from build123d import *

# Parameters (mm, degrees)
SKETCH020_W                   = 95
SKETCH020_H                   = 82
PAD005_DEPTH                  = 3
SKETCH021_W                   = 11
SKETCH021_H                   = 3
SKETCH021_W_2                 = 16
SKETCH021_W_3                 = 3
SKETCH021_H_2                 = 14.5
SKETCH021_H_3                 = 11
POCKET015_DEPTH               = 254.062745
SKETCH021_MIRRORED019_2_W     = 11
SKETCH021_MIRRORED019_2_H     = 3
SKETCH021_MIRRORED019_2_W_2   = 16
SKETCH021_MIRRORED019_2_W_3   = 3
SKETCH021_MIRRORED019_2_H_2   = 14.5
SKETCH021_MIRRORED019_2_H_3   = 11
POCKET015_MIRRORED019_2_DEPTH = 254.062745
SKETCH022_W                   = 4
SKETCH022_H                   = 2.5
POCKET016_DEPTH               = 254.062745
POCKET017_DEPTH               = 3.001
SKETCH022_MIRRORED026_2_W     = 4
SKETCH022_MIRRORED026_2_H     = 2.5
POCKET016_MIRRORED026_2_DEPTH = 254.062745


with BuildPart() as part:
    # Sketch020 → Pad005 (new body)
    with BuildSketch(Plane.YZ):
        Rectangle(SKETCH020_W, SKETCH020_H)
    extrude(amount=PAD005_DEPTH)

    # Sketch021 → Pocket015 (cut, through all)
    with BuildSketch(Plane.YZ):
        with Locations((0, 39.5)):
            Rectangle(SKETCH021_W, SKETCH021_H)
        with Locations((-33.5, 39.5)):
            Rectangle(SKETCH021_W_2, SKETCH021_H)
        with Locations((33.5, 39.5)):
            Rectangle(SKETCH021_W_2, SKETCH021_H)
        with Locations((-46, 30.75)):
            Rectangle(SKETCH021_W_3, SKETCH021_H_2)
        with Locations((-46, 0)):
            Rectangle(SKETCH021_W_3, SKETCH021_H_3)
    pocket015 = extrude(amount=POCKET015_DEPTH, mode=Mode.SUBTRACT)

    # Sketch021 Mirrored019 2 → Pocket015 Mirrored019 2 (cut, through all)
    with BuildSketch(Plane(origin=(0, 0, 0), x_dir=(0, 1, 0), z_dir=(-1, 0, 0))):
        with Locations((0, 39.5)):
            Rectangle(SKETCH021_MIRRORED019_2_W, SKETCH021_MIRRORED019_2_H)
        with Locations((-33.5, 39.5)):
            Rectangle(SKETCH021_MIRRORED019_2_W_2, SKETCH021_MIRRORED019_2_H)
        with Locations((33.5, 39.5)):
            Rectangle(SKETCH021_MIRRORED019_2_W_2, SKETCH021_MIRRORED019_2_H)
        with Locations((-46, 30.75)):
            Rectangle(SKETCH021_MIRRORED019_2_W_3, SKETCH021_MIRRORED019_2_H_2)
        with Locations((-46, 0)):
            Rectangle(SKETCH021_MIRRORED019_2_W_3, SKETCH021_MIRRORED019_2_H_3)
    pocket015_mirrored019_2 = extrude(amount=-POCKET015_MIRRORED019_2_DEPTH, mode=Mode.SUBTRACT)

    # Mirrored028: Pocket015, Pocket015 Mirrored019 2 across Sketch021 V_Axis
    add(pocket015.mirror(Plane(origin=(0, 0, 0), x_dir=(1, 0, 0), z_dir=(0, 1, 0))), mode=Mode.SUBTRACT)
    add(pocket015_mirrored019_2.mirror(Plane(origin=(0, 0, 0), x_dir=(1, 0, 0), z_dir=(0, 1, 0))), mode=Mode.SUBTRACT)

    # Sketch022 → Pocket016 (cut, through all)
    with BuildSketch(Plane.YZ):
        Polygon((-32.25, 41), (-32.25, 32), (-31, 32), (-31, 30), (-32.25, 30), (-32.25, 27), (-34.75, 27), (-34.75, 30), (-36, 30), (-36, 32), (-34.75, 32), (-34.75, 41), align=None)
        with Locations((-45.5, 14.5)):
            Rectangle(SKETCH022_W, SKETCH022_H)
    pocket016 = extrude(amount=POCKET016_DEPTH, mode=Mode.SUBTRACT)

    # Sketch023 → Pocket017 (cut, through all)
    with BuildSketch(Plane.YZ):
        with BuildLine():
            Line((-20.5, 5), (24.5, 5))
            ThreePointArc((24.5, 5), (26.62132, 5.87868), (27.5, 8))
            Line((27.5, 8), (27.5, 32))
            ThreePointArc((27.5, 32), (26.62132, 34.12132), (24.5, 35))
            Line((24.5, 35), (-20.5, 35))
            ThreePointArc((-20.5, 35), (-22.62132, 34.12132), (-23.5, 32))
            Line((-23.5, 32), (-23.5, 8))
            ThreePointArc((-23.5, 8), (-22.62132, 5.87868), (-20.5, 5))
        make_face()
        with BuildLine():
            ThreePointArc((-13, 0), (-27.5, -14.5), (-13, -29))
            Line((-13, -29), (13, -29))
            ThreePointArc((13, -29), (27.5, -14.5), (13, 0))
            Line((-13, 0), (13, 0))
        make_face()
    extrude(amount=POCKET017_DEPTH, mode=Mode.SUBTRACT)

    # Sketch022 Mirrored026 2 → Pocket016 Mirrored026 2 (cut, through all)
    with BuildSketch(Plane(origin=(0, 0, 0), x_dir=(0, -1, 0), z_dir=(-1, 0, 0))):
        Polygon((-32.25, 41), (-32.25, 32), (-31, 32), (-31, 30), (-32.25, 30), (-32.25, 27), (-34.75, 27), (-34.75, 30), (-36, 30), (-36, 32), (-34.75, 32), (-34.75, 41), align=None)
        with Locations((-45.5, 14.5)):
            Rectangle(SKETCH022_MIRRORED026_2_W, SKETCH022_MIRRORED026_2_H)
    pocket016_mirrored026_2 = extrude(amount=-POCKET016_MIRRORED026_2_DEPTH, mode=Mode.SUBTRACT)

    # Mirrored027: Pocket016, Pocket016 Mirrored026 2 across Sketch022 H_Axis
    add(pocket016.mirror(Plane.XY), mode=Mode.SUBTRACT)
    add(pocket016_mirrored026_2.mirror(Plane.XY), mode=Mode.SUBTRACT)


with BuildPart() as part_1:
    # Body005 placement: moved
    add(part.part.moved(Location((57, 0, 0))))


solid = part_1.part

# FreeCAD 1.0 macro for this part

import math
import FreeCAD as App
import Part
import Sketcher
from FreeCAD import Vector

doc = App.newDocument("Part")
body = doc.addObject("PartDesign::Body", "Body")

# Sketch on YZ plane
sketch1 = body.newObject("Sketcher::SketchObject", "Sketch")
sketch1.AttachmentSupport = (doc.getObject("YZ_Plane"), [""])
sketch1.MapMode = "FlatFace"
sketch1.addGeometry([
    Part.LineSegment(Vector(-48, 41, 0), Vector(-48, -41, 0)),
    Part.LineSegment(Vector(-48, -41, 0), Vector(48, -41, 0)),
    Part.LineSegment(Vector(48, -41, 0), Vector(48, 41, 0)),
    Part.LineSegment(Vector(48, 41, 0), Vector(-48, 41, 0)),
], False)
sketch1.addConstraint([
    Sketcher.Constraint("Coincident", 0, 2, 1, 1),
    Sketcher.Constraint("Coincident", 1, 2, 2, 1),
    Sketcher.Constraint("Coincident", 2, 2, 3, 1),
    Sketcher.Constraint("Coincident", 3, 2, 0, 1),
    Sketcher.Constraint("Vertical", 0),
    Sketcher.Constraint("Horizontal", 1),
    Sketcher.Constraint("Vertical", 2),
    Sketcher.Constraint("Horizontal", 3),
    Sketcher.Constraint("Symmetric", 0, 2, 2, 2, -1, 1),
    Sketcher.Constraint("DistanceX", 1, 1, 1, 2, 95.0),
    Sketcher.Constraint("DistanceY", 0, 2, 0, 1, 82.0),
])
pad1 = body.newObject("PartDesign::Pad", "Pad")
pad1.Profile = sketch1
pad1.Length = 3

# Sketch on YZ plane
sketch2 = body.newObject("Sketcher::SketchObject", "Sketch001")
sketch2.AttachmentSupport = (doc.getObject("YZ_Plane"), [""])
sketch2.MapMode = "FlatFace"
sketch2.addGeometry([
    Part.LineSegment(Vector(-5.5, 41, 0), Vector(-5.5, 38, 0)),  # 0
    Part.LineSegment(Vector(-5.5, 38, 0), Vector(5.5, 38, 0)),  # 1
    Part.LineSegment(Vector(5.5, 38, 0), Vector(5.5, 41, 0)),  # 2
    Part.LineSegment(Vector(5.5, 41, 0), Vector(-5.5, 41, 0)),  # 3
    Part.LineSegment(Vector(-41.5, 41, 0), Vector(-41.5, 38, 0)),  # 4
    Part.LineSegment(Vector(-41.5, 38, 0), Vector(-25.5, 38, 0)),  # 5
    Part.LineSegment(Vector(-25.5, 38, 0), Vector(-25.5, 41, 0)),  # 6
    Part.LineSegment(Vector(-25.5, 41, 0), Vector(-41.5, 41, 0)),  # 7
    Part.LineSegment(Vector(25.5, 41, 0), Vector(25.5, 38, 0)),  # 8
    Part.LineSegment(Vector(25.5, 38, 0), Vector(41.5, 38, 0)),  # 9
    Part.LineSegment(Vector(41.5, 38, 0), Vector(41.5, 41, 0)),  # 10
    Part.LineSegment(Vector(41.5, 41, 0), Vector(25.5, 41, 0)),  # 11
    Part.LineSegment(Vector(-47.5, 38, 0), Vector(-47.5, 23.5, 0)),  # 12
    Part.LineSegment(Vector(-47.5, 23.5, 0), Vector(-44.5, 23.5, 0)),  # 13
    Part.LineSegment(Vector(-44.5, 23.5, 0), Vector(-44.5, 38, 0)),  # 14
    Part.LineSegment(Vector(-44.5, 38, 0), Vector(-47.5, 38, 0)),  # 15
    Part.LineSegment(Vector(-47.5, 5.5, 0), Vector(-47.5, -5.5, 0)),  # 16
    Part.LineSegment(Vector(-47.5, -5.5, 0), Vector(-44.5, -5.5, 0)),  # 17
    Part.LineSegment(Vector(-44.5, -5.5, 0), Vector(-44.5, 5.5, 0)),  # 18
    Part.LineSegment(Vector(-44.5, 5.5, 0), Vector(-47.5, 5.5, 0)),  # 19
], False)
sketch2.addConstraint([
    Sketcher.Constraint("Coincident", 0, 2, 1, 1),
    Sketcher.Constraint("Coincident", 1, 2, 2, 1),
    Sketcher.Constraint("Coincident", 2, 2, 3, 1),
    Sketcher.Constraint("Coincident", 3, 2, 0, 1),
    Sketcher.Constraint("Coincident", 4, 2, 5, 1),
    Sketcher.Constraint("Coincident", 5, 2, 6, 1),
    Sketcher.Constraint("Coincident", 6, 2, 7, 1),
    Sketcher.Constraint("Coincident", 7, 2, 4, 1),
    Sketcher.Constraint("Coincident", 8, 2, 9, 1),
    Sketcher.Constraint("Coincident", 9, 2, 10, 1),
    Sketcher.Constraint("Coincident", 10, 2, 11, 1),
    Sketcher.Constraint("Coincident", 11, 2, 8, 1),
    Sketcher.Constraint("Coincident", 12, 2, 13, 1),
    Sketcher.Constraint("Coincident", 13, 2, 14, 1),
    Sketcher.Constraint("Coincident", 14, 2, 15, 1),
    Sketcher.Constraint("Coincident", 15, 2, 12, 1),
    Sketcher.Constraint("Coincident", 16, 2, 17, 1),
    Sketcher.Constraint("Coincident", 17, 2, 18, 1),
    Sketcher.Constraint("Coincident", 18, 2, 19, 1),
    Sketcher.Constraint("Coincident", 19, 2, 16, 1),
    Sketcher.Constraint("Vertical", 0),
    Sketcher.Constraint("Horizontal", 1),
    Sketcher.Constraint("Vertical", 2),
    Sketcher.Constraint("Horizontal", 3),
    Sketcher.Constraint("Vertical", 4),
    Sketcher.Constraint("Horizontal", 5),
    Sketcher.Constraint("Vertical", 6),
    Sketcher.Constraint("Horizontal", 7),
    Sketcher.Constraint("Vertical", 8),
    Sketcher.Constraint("Horizontal", 9),
    Sketcher.Constraint("Vertical", 10),
    Sketcher.Constraint("Horizontal", 11),
    Sketcher.Constraint("Vertical", 12),
    Sketcher.Constraint("Horizontal", 13),
    Sketcher.Constraint("Vertical", 14),
    Sketcher.Constraint("Horizontal", 15),
    Sketcher.Constraint("Vertical", 16),
    Sketcher.Constraint("Horizontal", 17),
    Sketcher.Constraint("Vertical", 18),
    Sketcher.Constraint("Horizontal", 19),
    Sketcher.Constraint("Symmetric", 5, 2, 8, 2, -2),
    Sketcher.Constraint("Symmetric", 7, 2, 10, 2, -2),
    Sketcher.Constraint("Horizontal", 1, 2, 4, 2),
    Sketcher.Constraint("Horizontal", 3, 2, 6, 2),
    Sketcher.Constraint("Horizontal", 9, 2, 14, 2),
    Sketcher.Constraint("Vertical", 15, 2, 16, 2),
    Sketcher.Constraint("Vertical", 14, 2, 17, 2),
    Sketcher.Constraint("Equal", 19, 0),
    Sketcher.Constraint("Equal", 3, 16),
    Sketcher.Constraint("DistanceX", 1, 1, 1, 2, 11.0),
    Sketcher.Constraint("DistanceX", 5, 1, 5, 2, 16.0),
    Sketcher.Constraint("DistanceX", 13, 1, 13, 2, 3.0),
    Sketcher.Constraint("DistanceY", 12, 2, 12, 1, 14.5),
    Sketcher.Constraint("DistanceY", -1, 1, 0, 2, 38.0),
    Sketcher.Constraint("DistanceX", 4, 2, 0, 2, 36.0),
    Sketcher.Constraint("DistanceX", 1, 2, 8, 2, 20.0),
    Sketcher.Constraint("DistanceX", 12, 2, 4, 2, 6.0),
    Sketcher.Constraint("DistanceY", 16, 2, 12, 2, 29.0),
])
pocket1 = body.newObject("PartDesign::Pocket", "Pocket")
pocket1.Profile = sketch2
pocket1.Type = "ThroughAll"
pocket1.Reversed = True

# Sketch on YZ plane
sketch3 = body.newObject("Sketcher::SketchObject", "Sketch002")
sketch3.AttachmentSupport = (doc.getObject("YZ_Plane"), [""])
sketch3.MapMode = "FlatFace"
sketch3.addGeometry([
    Part.LineSegment(Vector(-5.5, -41, 0), Vector(-5.5, -38, 0)),  # 0
    Part.LineSegment(Vector(-5.5, -38, 0), Vector(5.5, -38, 0)),  # 1
    Part.LineSegment(Vector(5.5, -38, 0), Vector(5.5, -41, 0)),  # 2
    Part.LineSegment(Vector(5.5, -41, 0), Vector(-5.5, -41, 0)),  # 3
    Part.LineSegment(Vector(-41.5, -41, 0), Vector(-41.5, -38, 0)),  # 4
    Part.LineSegment(Vector(-41.5, -38, 0), Vector(-25.5, -38, 0)),  # 5
    Part.LineSegment(Vector(-25.5, -38, 0), Vector(-25.5, -41, 0)),  # 6
    Part.LineSegment(Vector(-25.5, -41, 0), Vector(-41.5, -41, 0)),  # 7
    Part.LineSegment(Vector(25.5, -41, 0), Vector(25.5, -38, 0)),  # 8
    Part.LineSegment(Vector(25.5, -38, 0), Vector(41.5, -38, 0)),  # 9
    Part.LineSegment(Vector(41.5, -38, 0), Vector(41.5, -41, 0)),  # 10
    Part.LineSegment(Vector(41.5, -41, 0), Vector(25.5, -41, 0)),  # 11
    Part.LineSegment(Vector(-47.5, -38, 0), Vector(-47.5, -23.5, 0)),  # 12
    Part.LineSegment(Vector(-47.5, -23.5, 0), Vector(-44.5, -23.5, 0)),  # 13
    Part.LineSegment(Vector(-44.5, -23.5, 0), Vector(-44.5, -38, 0)),  # 14
    Part.LineSegment(Vector(-44.5, -38, 0), Vector(-47.5, -38, 0)),  # 15
    Part.LineSegment(Vector(-47.5, -5.5, 0), Vector(-47.5, 5.5, 0)),  # 16
    Part.LineSegment(Vector(-47.5, 5.5, 0), Vector(-44.5, 5.5, 0)),  # 17
    Part.LineSegment(Vector(-44.5, 5.5, 0), Vector(-44.5, -5.5, 0)),  # 18
    Part.LineSegment(Vector(-44.5, -5.5, 0), Vector(-47.5, -5.5, 0)),  # 19
], False)
sketch3.addConstraint([
    Sketcher.Constraint("Coincident", 0, 2, 1, 1),
    Sketcher.Constraint("Coincident", 1, 2, 2, 1),
    Sketcher.Constraint("Coincident", 2, 2, 3, 1),
    Sketcher.Constraint("Coincident", 3, 2, 0, 1),
    Sketcher.Constraint("Coincident", 4, 2, 5, 1),
    Sketcher.Constraint("Coincident", 5, 2, 6, 1),
    Sketcher.Constraint("Coincident", 6, 2, 7, 1),
    Sketcher.Constraint("Coincident", 7, 2, 4, 1),
    Sketcher.Constraint("Coincident", 8, 2, 9, 1),
    Sketcher.Constraint("Coincident", 9, 2, 10, 1),
    Sketcher.Constraint("Coincident", 10, 2, 11, 1),
    Sketcher.Constraint("Coincident", 11, 2, 8, 1),
    Sketcher.Constraint("Coincident", 12, 2, 13, 1),
    Sketcher.Constraint("Coincident", 13, 2, 14, 1),
    Sketcher.Constraint("Coincident", 14, 2, 15, 1),
    Sketcher.Constraint("Coincident", 15, 2, 12, 1),
    Sketcher.Constraint("Coincident", 16, 2, 17, 1),
    Sketcher.Constraint("Coincident", 17, 2, 18, 1),
    Sketcher.Constraint("Coincident", 18, 2, 19, 1),
    Sketcher.Constraint("Coincident", 19, 2, 16, 1),
    Sketcher.Constraint("Vertical", 0),
    Sketcher.Constraint("Horizontal", 1),
    Sketcher.Constraint("Vertical", 2),
    Sketcher.Constraint("Horizontal", 3),
    Sketcher.Constraint("Vertical", 4),
    Sketcher.Constraint("Horizontal", 5),
    Sketcher.Constraint("Vertical", 6),
    Sketcher.Constraint("Horizontal", 7),
    Sketcher.Constraint("Vertical", 8),
    Sketcher.Constraint("Horizontal", 9),
    Sketcher.Constraint("Vertical", 10),
    Sketcher.Constraint("Horizontal", 11),
    Sketcher.Constraint("Vertical", 12),
    Sketcher.Constraint("Horizontal", 13),
    Sketcher.Constraint("Vertical", 14),
    Sketcher.Constraint("Horizontal", 15),
    Sketcher.Constraint("Vertical", 16),
    Sketcher.Constraint("Horizontal", 17),
    Sketcher.Constraint("Vertical", 18),
    Sketcher.Constraint("Horizontal", 19),
    Sketcher.Constraint("Symmetric", 5, 2, 8, 2, -2),
    Sketcher.Constraint("Symmetric", 7, 2, 10, 2, -2),
    Sketcher.Constraint("Horizontal", 1, 2, 4, 2),
    Sketcher.Constraint("Horizontal", 3, 2, 6, 2),
    Sketcher.Constraint("Horizontal", 9, 2, 14, 2),
    Sketcher.Constraint("Vertical", 15, 2, 16, 2),
    Sketcher.Constraint("Vertical", 14, 2, 17, 2),
    Sketcher.Constraint("Equal", 19, 0),
    Sketcher.Constraint("Equal", 3, 16),
    Sketcher.Constraint("DistanceX", 1, 1, 1, 2, 11.0),
    Sketcher.Constraint("DistanceX", 5, 1, 5, 2, 16.0),
    Sketcher.Constraint("DistanceX", 13, 1, 13, 2, 3.0),
    Sketcher.Constraint("DistanceY", 12, 1, 12, 2, 14.5),
    Sketcher.Constraint("DistanceY", 0, 2, -1, 1, 38.0),
    Sketcher.Constraint("DistanceX", 4, 2, 0, 2, 36.0),
    Sketcher.Constraint("DistanceX", 1, 2, 8, 2, 20.0),
    Sketcher.Constraint("DistanceX", 12, 2, 4, 2, 6.0),
    Sketcher.Constraint("DistanceY", 12, 2, 16, 2, 29.0),
])
pocket2 = body.newObject("PartDesign::Pocket", "Pocket001")
pocket2.Profile = sketch3
pocket2.Type = "ThroughAll"
pocket2.Reversed = True
doc.recompute()

mirrored = body.newObject("PartDesign::Mirrored", "Mirrored")
mirrored.Originals = [pocket1, pocket2]
mirrored.MirrorPlane = (doc.getObject("XZ_Plane"), [""])
body.Tip = mirrored

# Sketch on YZ plane
sketch4 = body.newObject("Sketcher::SketchObject", "Sketch003")
sketch4.AttachmentSupport = (doc.getObject("YZ_Plane"), [""])
sketch4.MapMode = "FlatFace"
sketch4.addGeometry([
    Part.LineSegment(Vector(-32.2, 32, 0), Vector(-32.2, 41, 0)),  # 0
    Part.LineSegment(Vector(-32.2, 41, 0), Vector(-34.8, 41, 0)),  # 1
    Part.LineSegment(Vector(-34.8, 41, 0), Vector(-34.8, 32, 0)),  # 2
    Part.LineSegment(Vector(-34.8, 32, 0), Vector(-36, 32, 0)),  # 3
    Part.LineSegment(Vector(-36, 32, 0), Vector(-36, 30, 0)),  # 4
    Part.LineSegment(Vector(-36, 30, 0), Vector(-34.8, 30, 0)),  # 5
    Part.LineSegment(Vector(-34.8, 30, 0), Vector(-34.8, 27, 0)),  # 6
    Part.LineSegment(Vector(-34.8, 27, 0), Vector(-32.2, 27, 0)),  # 7
    Part.LineSegment(Vector(-32.2, 27, 0), Vector(-32.2, 30, 0)),  # 8
    Part.LineSegment(Vector(-32.2, 30, 0), Vector(-31, 30, 0)),  # 9
    Part.LineSegment(Vector(-31, 30, 0), Vector(-31, 32, 0)),  # 10
    Part.LineSegment(Vector(-31, 32, 0), Vector(-32.2, 32, 0)),  # 11
    Part.LineSegment(Vector(-47.5, 15.8, 0), Vector(-47.5, 13.2, 0)),  # 12
    Part.LineSegment(Vector(-47.5, 13.2, 0), Vector(-43.5, 13.2, 0)),  # 13
    Part.LineSegment(Vector(-43.5, 13.2, 0), Vector(-43.5, 15.8, 0)),  # 14
    Part.LineSegment(Vector(-43.5, 15.8, 0), Vector(-47.5, 15.8, 0)),  # 15
], False)
sketch4.addConstraint([
    Sketcher.Constraint("Coincident", 0, 2, 1, 1),
    Sketcher.Constraint("Coincident", 1, 2, 2, 1),
    Sketcher.Constraint("Coincident", 2, 2, 3, 1),
    Sketcher.Constraint("Coincident", 3, 2, 4, 1),
    Sketcher.Constraint("Coincident", 4, 2, 5, 1),
    Sketcher.Constraint("Coincident", 5, 2, 6, 1),
    Sketcher.Constraint("Coincident", 6, 2, 7, 1),
    Sketcher.Constraint("Coincident", 7, 2, 8, 1),
    Sketcher.Constraint("Coincident", 8, 2, 9, 1),
    Sketcher.Constraint("Coincident", 9, 2, 10, 1),
    Sketcher.Constraint("Coincident", 10, 2, 11, 1),
    Sketcher.Constraint("Coincident", 11, 2, 0, 1),
    Sketcher.Constraint("Coincident", 12, 2, 13, 1),
    Sketcher.Constraint("Coincident", 13, 2, 14, 1),
    Sketcher.Constraint("Coincident", 14, 2, 15, 1),
    Sketcher.Constraint("Coincident", 15, 2, 12, 1),
    Sketcher.Constraint("Vertical", 0),
    Sketcher.Constraint("Horizontal", 1),
    Sketcher.Constraint("Vertical", 2),
    Sketcher.Constraint("Horizontal", 3),
    Sketcher.Constraint("Vertical", 4),
    Sketcher.Constraint("Horizontal", 5),
    Sketcher.Constraint("Vertical", 6),
    Sketcher.Constraint("Horizontal", 7),
    Sketcher.Constraint("Vertical", 8),
    Sketcher.Constraint("Horizontal", 9),
    Sketcher.Constraint("Vertical", 10),
    Sketcher.Constraint("Horizontal", 11),
    Sketcher.Constraint("Vertical", 12),
    Sketcher.Constraint("Horizontal", 13),
    Sketcher.Constraint("Vertical", 14),
    Sketcher.Constraint("Horizontal", 15),
    Sketcher.Constraint("Horizontal", 5, 2, 8, 2),
    Sketcher.Constraint("Horizontal", 3, 2, 10, 2),
    Sketcher.Constraint("Vertical", 2, 2, 5, 2),
    Sketcher.Constraint("Vertical", 0, 2, 7, 2),
    Sketcher.Constraint("Equal", 5, 9),
    Sketcher.Constraint("Equal", 7, 12),
    Sketcher.Constraint("DistanceX", 13, 1, 13, 2, 4.0),
    Sketcher.Constraint("DistanceY", 0, 1, 0, 2, 9.0),
    Sketcher.Constraint("DistanceY", 4, 2, 4, 1, 2.0),
    Sketcher.Constraint("DistanceY", 6, 2, 6, 1, 3.0),
    Sketcher.Constraint("DistanceX", 1, 2, 1, 1, 2.5),
    Sketcher.Constraint("DistanceY", -1, 1, 0, 2, 41.0),
    Sketcher.Constraint("DistanceX", 3, 2, -1, 1, 36.0),
    Sketcher.Constraint("DistanceX", 9, 2, -1, 1, 31.0),
    Sketcher.Constraint("DistanceX", 12, 2, -1, 1, 47.5),
    Sketcher.Constraint("DistanceY", -1, 1, 12, 2, 13.25),
])
pocket3 = body.newObject("PartDesign::Pocket", "Pocket002")
pocket3.Profile = sketch4
pocket3.Type = "ThroughAll"
pocket3.Reversed = True

# Sketch on YZ plane
sketch5 = body.newObject("Sketcher::SketchObject", "Sketch004")
sketch5.AttachmentSupport = (doc.getObject("YZ_Plane"), [""])
sketch5.MapMode = "FlatFace"
sketch5.addGeometry([
    Part.LineSegment(Vector(-20.5, 5, 0), Vector(24.5, 5, 0)),  # 0
    Part.ArcOfCircle(Part.Circle(Vector(24.5, 8, 0), Vector(0, 0, 1), 3), math.radians(-90), math.radians(0)),  # 1
    Part.LineSegment(Vector(27.5, 8, 0), Vector(27.5, 32, 0)),  # 2
    Part.ArcOfCircle(Part.Circle(Vector(24.5, 32, 0), Vector(0, 0, 1), 3), math.radians(0), math.radians(90)),  # 3
    Part.LineSegment(Vector(24.5, 35, 0), Vector(-20.5, 35, 0)),  # 4
    Part.ArcOfCircle(Part.Circle(Vector(-20.5, 32, 0), Vector(0, 0, 1), 3), math.radians(90), math.radians(180)),  # 5
    Part.LineSegment(Vector(-23.5, 32, 0), Vector(-23.5, 8, 0)),  # 6
    Part.ArcOfCircle(Part.Circle(Vector(-20.5, 8, 0), Vector(0, 0, 1), 3), math.radians(-180), math.radians(-90)),  # 7
    Part.ArcOfCircle(Part.Circle(Vector(-13, -14.5, 0), Vector(0, 0, 1), 14.5), math.radians(90), math.radians(270)),  # 8
    Part.LineSegment(Vector(-13, -29, 0), Vector(13, -29, 0)),  # 9
    Part.ArcOfCircle(Part.Circle(Vector(13, -14.5, 0), Vector(0, 0, 1), 14.5), math.radians(-90), math.radians(90)),  # 10
    Part.LineSegment(Vector(13, 0, 0), Vector(-13, 0, 0)),  # 11
], False)
sketch5.addConstraint([
    Sketcher.Constraint("Tangent", 0, 2, 1, 1),
    Sketcher.Constraint("Tangent", 1, 2, 2, 1),
    Sketcher.Constraint("Tangent", 2, 2, 3, 1),
    Sketcher.Constraint("Tangent", 3, 2, 4, 1),
    Sketcher.Constraint("Tangent", 4, 2, 5, 1),
    Sketcher.Constraint("Tangent", 5, 2, 6, 1),
    Sketcher.Constraint("Tangent", 6, 2, 7, 1),
    Sketcher.Constraint("Tangent", 7, 2, 0, 1),
    Sketcher.Constraint("Tangent", 8, 2, 9, 1),
    Sketcher.Constraint("Tangent", 9, 2, 10, 1),
    Sketcher.Constraint("Tangent", 10, 2, 11, 1),
    Sketcher.Constraint("Tangent", 11, 2, 8, 1),
    Sketcher.Constraint("Horizontal", 0),
    Sketcher.Constraint("Vertical", 2),
    Sketcher.Constraint("Horizontal", 4),
    Sketcher.Constraint("Vertical", 6),
    Sketcher.Constraint("Horizontal", 9),
    Sketcher.Constraint("Horizontal", 11),
    Sketcher.Constraint("Equal", 1, 3),
    Sketcher.Constraint("Equal", 3, 5),
    Sketcher.Constraint("Equal", 5, 7),
    Sketcher.Constraint("Symmetric", 10, 2, 11, 2, -1, 1),
    Sketcher.Constraint("Radius", 1, 3.000001),
    Sketcher.Constraint("Radius", 8, 14.5),
    Sketcher.Constraint("DistanceX", 0, 1, 0, 2, 45.0),
    Sketcher.Constraint("DistanceX", 9, 1, 9, 2, 26.0),
    Sketcher.Constraint("DistanceY", 2, 1, 2, 2, 24.0),
    Sketcher.Constraint("DistanceY", -1, 1, 1, 3, 8.000001),
    Sketcher.Constraint("DistanceX", -1, 1, 1, 3, 24.499999),
])
pocket4 = body.newObject("PartDesign::Pocket", "Pocket003")
pocket4.Profile = sketch5
pocket4.Type = "ThroughAll"
pocket4.Reversed = True

# Sketch on YZ plane
sketch6 = body.newObject("Sketcher::SketchObject", "Sketch005")
sketch6.AttachmentSupport = (doc.getObject("YZ_Plane"), [""])
sketch6.MapMode = "FlatFace"
sketch6.addGeometry([
    Part.LineSegment(Vector(32.2, 32, 0), Vector(32.2, 41, 0)),  # 0
    Part.LineSegment(Vector(32.2, 41, 0), Vector(34.8, 41, 0)),  # 1
    Part.LineSegment(Vector(34.8, 41, 0), Vector(34.8, 32, 0)),  # 2
    Part.LineSegment(Vector(34.8, 32, 0), Vector(36, 32, 0)),  # 3
    Part.LineSegment(Vector(36, 32, 0), Vector(36, 30, 0)),  # 4
    Part.LineSegment(Vector(36, 30, 0), Vector(34.8, 30, 0)),  # 5
    Part.LineSegment(Vector(34.8, 30, 0), Vector(34.8, 27, 0)),  # 6
    Part.LineSegment(Vector(34.8, 27, 0), Vector(32.2, 27, 0)),  # 7
    Part.LineSegment(Vector(32.2, 27, 0), Vector(32.2, 30, 0)),  # 8
    Part.LineSegment(Vector(32.2, 30, 0), Vector(31, 30, 0)),  # 9
    Part.LineSegment(Vector(31, 30, 0), Vector(31, 32, 0)),  # 10
    Part.LineSegment(Vector(31, 32, 0), Vector(32.2, 32, 0)),  # 11
    Part.LineSegment(Vector(47.5, 15.8, 0), Vector(47.5, 13.2, 0)),  # 12
    Part.LineSegment(Vector(47.5, 13.2, 0), Vector(43.5, 13.2, 0)),  # 13
    Part.LineSegment(Vector(43.5, 13.2, 0), Vector(43.5, 15.8, 0)),  # 14
    Part.LineSegment(Vector(43.5, 15.8, 0), Vector(47.5, 15.8, 0)),  # 15
], False)
sketch6.addConstraint([
    Sketcher.Constraint("Coincident", 0, 2, 1, 1),
    Sketcher.Constraint("Coincident", 1, 2, 2, 1),
    Sketcher.Constraint("Coincident", 2, 2, 3, 1),
    Sketcher.Constraint("Coincident", 3, 2, 4, 1),
    Sketcher.Constraint("Coincident", 4, 2, 5, 1),
    Sketcher.Constraint("Coincident", 5, 2, 6, 1),
    Sketcher.Constraint("Coincident", 6, 2, 7, 1),
    Sketcher.Constraint("Coincident", 7, 2, 8, 1),
    Sketcher.Constraint("Coincident", 8, 2, 9, 1),
    Sketcher.Constraint("Coincident", 9, 2, 10, 1),
    Sketcher.Constraint("Coincident", 10, 2, 11, 1),
    Sketcher.Constraint("Coincident", 11, 2, 0, 1),
    Sketcher.Constraint("Coincident", 12, 2, 13, 1),
    Sketcher.Constraint("Coincident", 13, 2, 14, 1),
    Sketcher.Constraint("Coincident", 14, 2, 15, 1),
    Sketcher.Constraint("Coincident", 15, 2, 12, 1),
    Sketcher.Constraint("Vertical", 0),
    Sketcher.Constraint("Horizontal", 1),
    Sketcher.Constraint("Vertical", 2),
    Sketcher.Constraint("Horizontal", 3),
    Sketcher.Constraint("Vertical", 4),
    Sketcher.Constraint("Horizontal", 5),
    Sketcher.Constraint("Vertical", 6),
    Sketcher.Constraint("Horizontal", 7),
    Sketcher.Constraint("Vertical", 8),
    Sketcher.Constraint("Horizontal", 9),
    Sketcher.Constraint("Vertical", 10),
    Sketcher.Constraint("Horizontal", 11),
    Sketcher.Constraint("Vertical", 12),
    Sketcher.Constraint("Horizontal", 13),
    Sketcher.Constraint("Vertical", 14),
    Sketcher.Constraint("Horizontal", 15),
    Sketcher.Constraint("Horizontal", 5, 2, 8, 2),
    Sketcher.Constraint("Horizontal", 3, 2, 10, 2),
    Sketcher.Constraint("Vertical", 2, 2, 5, 2),
    Sketcher.Constraint("Vertical", 0, 2, 7, 2),
    Sketcher.Constraint("Equal", 5, 9),
    Sketcher.Constraint("Equal", 7, 12),
    Sketcher.Constraint("DistanceX", 13, 2, 13, 1, 4.0),
    Sketcher.Constraint("DistanceY", 0, 1, 0, 2, 9.0),
    Sketcher.Constraint("DistanceY", 4, 2, 4, 1, 2.0),
    Sketcher.Constraint("DistanceY", 6, 2, 6, 1, 3.0),
    Sketcher.Constraint("DistanceX", 1, 1, 1, 2, 2.5),
    Sketcher.Constraint("DistanceY", -1, 1, 0, 2, 41.0),
    Sketcher.Constraint("DistanceX", -1, 1, 3, 2, 36.0),
    Sketcher.Constraint("DistanceX", -1, 1, 9, 2, 31.0),
    Sketcher.Constraint("DistanceX", -1, 1, 12, 2, 47.5),
    Sketcher.Constraint("DistanceY", -1, 1, 12, 2, 13.25),
])
pocket5 = body.newObject("PartDesign::Pocket", "Pocket004")
pocket5.Profile = sketch6
pocket5.Type = "ThroughAll"
pocket5.Reversed = True
doc.recompute()

mirrored2 = body.newObject("PartDesign::Mirrored", "Mirrored001")
mirrored2.Originals = [pocket3, pocket5]
mirrored2.MirrorPlane = (doc.getObject("XY_Plane"), [""])
body.Tip = mirrored2
body2 = doc.addObject("PartDesign::Body", "Body001")
doc.recompute()

body.Placement = App.Placement(Vector(57, 0, 0), App.Rotation(Vector(0, 0, 1), 0))
boolean = body2.newObject("PartDesign::Boolean", "Boolean")
boolean.Type = "Fuse"
boolean.addObjects([body])

doc.recompute()
